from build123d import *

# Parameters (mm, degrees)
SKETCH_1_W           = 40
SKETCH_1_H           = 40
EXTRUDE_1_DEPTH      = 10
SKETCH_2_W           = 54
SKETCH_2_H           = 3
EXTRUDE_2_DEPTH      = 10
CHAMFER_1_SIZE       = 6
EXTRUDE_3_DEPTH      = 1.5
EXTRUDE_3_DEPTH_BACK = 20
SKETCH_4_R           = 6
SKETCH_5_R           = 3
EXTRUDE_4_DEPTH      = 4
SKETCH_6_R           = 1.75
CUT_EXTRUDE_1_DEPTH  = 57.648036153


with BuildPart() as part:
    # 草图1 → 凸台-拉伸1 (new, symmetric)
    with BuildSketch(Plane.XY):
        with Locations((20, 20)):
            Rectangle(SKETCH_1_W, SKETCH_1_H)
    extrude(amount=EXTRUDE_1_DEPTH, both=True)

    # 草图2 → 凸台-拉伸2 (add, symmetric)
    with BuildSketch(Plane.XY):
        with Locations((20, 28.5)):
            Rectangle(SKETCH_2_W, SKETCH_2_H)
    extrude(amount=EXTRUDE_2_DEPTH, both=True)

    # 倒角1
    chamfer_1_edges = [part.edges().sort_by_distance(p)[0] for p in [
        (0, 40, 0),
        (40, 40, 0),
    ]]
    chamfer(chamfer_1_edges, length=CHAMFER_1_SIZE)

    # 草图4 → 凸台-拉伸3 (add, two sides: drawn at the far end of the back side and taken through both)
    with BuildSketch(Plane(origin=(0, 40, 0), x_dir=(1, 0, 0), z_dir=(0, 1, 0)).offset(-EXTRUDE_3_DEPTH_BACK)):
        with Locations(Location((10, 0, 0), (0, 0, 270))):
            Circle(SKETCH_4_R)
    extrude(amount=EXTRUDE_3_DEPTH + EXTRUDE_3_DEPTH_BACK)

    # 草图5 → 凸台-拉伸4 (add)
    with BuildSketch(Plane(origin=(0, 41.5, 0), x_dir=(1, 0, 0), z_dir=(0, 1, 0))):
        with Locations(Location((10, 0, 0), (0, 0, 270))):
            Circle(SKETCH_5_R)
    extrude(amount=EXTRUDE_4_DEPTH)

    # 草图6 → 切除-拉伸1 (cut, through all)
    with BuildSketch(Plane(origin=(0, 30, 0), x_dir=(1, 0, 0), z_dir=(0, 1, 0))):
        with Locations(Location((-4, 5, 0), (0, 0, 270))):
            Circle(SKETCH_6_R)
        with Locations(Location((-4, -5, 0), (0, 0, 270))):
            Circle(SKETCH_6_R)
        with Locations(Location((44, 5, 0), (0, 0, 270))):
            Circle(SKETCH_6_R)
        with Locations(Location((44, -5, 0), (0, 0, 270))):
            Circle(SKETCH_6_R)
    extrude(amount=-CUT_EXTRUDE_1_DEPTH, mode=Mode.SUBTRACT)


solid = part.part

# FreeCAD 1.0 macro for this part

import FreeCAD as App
import Part
import Sketcher
from FreeCAD import Vector


def edges_at(feature, points):
    """Names of the edges that pass closest to the given points."""
    edges = feature.Shape.Edges
    near = lambda p: min(range(len(edges)), key=lambda i: edges[i].distToShape(Part.Vertex(*p))[0])
    return sorted({f"Edge{near(p) + 1}" for p in points})

doc = App.newDocument("Part")
body = doc.addObject("PartDesign::Body", "Body")

# Sketch on XY plane
sketch1 = body.newObject("Sketcher::SketchObject", "Sketch")
sketch1.AttachmentSupport = (doc.getObject("XY_Plane"), [""])
sketch1.MapMode = "FlatFace"
sketch1.addGeometry([
    Part.LineSegment(Vector(0, 40, 0), Vector(0, 0, 0)),
    Part.LineSegment(Vector(0, 0, 0), Vector(40, 0, 0)),
    Part.LineSegment(Vector(40, 0, 0), Vector(40, 40, 0)),
    Part.LineSegment(Vector(40, 40, 0), Vector(0, 40, 0)),
], False)
sketch1.addConstraint([
    Sketcher.Constraint("Coincident", 0, 2, 1, 1),
    Sketcher.Constraint("Coincident", 1, 2, 2, 1),
    Sketcher.Constraint("Coincident", 2, 2, 3, 1),
    Sketcher.Constraint("Coincident", 3, 2, 0, 1),
    Sketcher.Constraint("Vertical", 0),
    Sketcher.Constraint("Horizontal", 1),
    Sketcher.Constraint("Vertical", 2),
    Sketcher.Constraint("Horizontal", 3),
    Sketcher.Constraint("Coincident", 0, 2, -1, 1),
    Sketcher.Constraint("Equal", 3, 0),
    Sketcher.Constraint("DistanceX", 1, 1, 1, 2, 40.0),
])
pad1 = body.newObject("PartDesign::Pad", "Pad")
pad1.Profile = sketch1
pad1.Length = 20
pad1.Midplane = True

# Sketch on XY plane
sketch2 = body.newObject("Sketcher::SketchObject", "Sketch001")
sketch2.AttachmentSupport = (doc.getObject("XY_Plane"), [""])
sketch2.MapMode = "FlatFace"
sketch2.addGeometry([
    Part.LineSegment(Vector(-7, 30, 0), Vector(-7, 27, 0)),
    Part.LineSegment(Vector(-7, 27, 0), Vector(47, 27, 0)),
    Part.LineSegment(Vector(47, 27, 0), Vector(47, 30, 0)),
    Part.LineSegment(Vector(47, 30, 0), Vector(-7, 30, 0)),
], False)
sketch2.addConstraint([
    Sketcher.Constraint("Coincident", 0, 2, 1, 1),
    Sketcher.Constraint("Coincident", 1, 2, 2, 1),
    Sketcher.Constraint("Coincident", 2, 2, 3, 1),
    Sketcher.Constraint("Coincident", 3, 2, 0, 1),
    Sketcher.Constraint("Vertical", 0),
    Sketcher.Constraint("Horizontal", 1),
    Sketcher.Constraint("Vertical", 2),
    Sketcher.Constraint("Horizontal", 3),
    Sketcher.Constraint("DistanceX", 1, 1, 1, 2, 54.0),
    Sketcher.Constraint("DistanceY", 0, 2, 0, 1, 3.0),
    Sketcher.Constraint("DistanceX", 0, 2, -1, 1, 7.0),
    Sketcher.Constraint("DistanceY", -1, 1, 0, 2, 27.0),
])
pad2 = body.newObject("PartDesign::Pad", "Pad001")
pad2.Profile = sketch2
pad2.Length = 20
pad2.Midplane = True
doc.recompute()

chamfer = body.newObject("PartDesign::Chamfer", "Chamfer")
chamfer.Base = (pad2, edges_at(pad2, [(0, 40, 0), (40, 40, 0)]))
chamfer.Size = 6

# Sketch on XZ plane
sketch3 = body.newObject("Sketcher::SketchObject", "Sketch002")
sketch3.AttachmentSupport = (doc.getObject("XZ_Plane"), [""])
sketch3.MapMode = "FlatFace"
sketch3.AttachmentOffset = App.Placement(Vector(0, 0, -40), App.Rotation())
sketch3.addGeometry(Part.Circle(Vector(10, 0, 0), Vector(0, 0, 1), 6), False)
sketch3.addConstraint([
    Sketcher.Constraint("PointOnObject", 0, 3, -1),
    Sketcher.Constraint("Diameter", 0, 12.0),
    Sketcher.Constraint("DistanceX", -1, 1, 0, 3, 10.0),
])
pad3 = body.newObject("PartDesign::Pad", "Pad002")
pad3.Profile = sketch3
pad3.Type = "TwoLengths"
pad3.Length = 1.5
pad3.Length2 = 20
pad3.Reversed = True

# Sketch on XZ plane
sketch4 = body.newObject("Sketcher::SketchObject", "Sketch003")
sketch4.AttachmentSupport = (doc.getObject("XZ_Plane"), [""])
sketch4.MapMode = "FlatFace"
sketch4.AttachmentOffset = App.Placement(Vector(0, 0, -41.5), App.Rotation())
sketch4.addGeometry(Part.Circle(Vector(10, 0, 0), Vector(0, 0, 1), 3), False)
sketch4.addConstraint([
    Sketcher.Constraint("PointOnObject", 0, 3, -1),
    Sketcher.Constraint("Diameter", 0, 6.0),
    Sketcher.Constraint("DistanceX", -1, 1, 0, 3, 10.0),
])
pad4 = body.newObject("PartDesign::Pad", "Pad003")
pad4.Profile = sketch4
pad4.Length = 4
pad4.Reversed = True

# Sketch on XZ plane
sketch5 = body.newObject("Sketcher::SketchObject", "Sketch004")
sketch5.AttachmentSupport = (doc.getObject("XZ_Plane"), [""])
sketch5.MapMode = "FlatFace"
sketch5.AttachmentOffset = App.Placement(Vector(0, 0, -30), App.Rotation())
sketch5.addGeometry([
    Part.Circle(Vector(-4, -5, 0), Vector(0, 0, 1), 1.8),
    Part.Circle(Vector(-4, 5, 0), Vector(0, 0, 1), 1.8),
    Part.Circle(Vector(44, -5, 0), Vector(0, 0, 1), 1.8),
    Part.Circle(Vector(44, 5, 0), Vector(0, 0, 1), 1.8),
], False)
sketch5.addConstraint([
    Sketcher.Constraint("Equal", 0, 1),
    Sketcher.Constraint("Equal", 1, 2),
    Sketcher.Constraint("Equal", 2, 3),
    Sketcher.Constraint("Symmetric", 0, 3, 1, 3, -1),
    Sketcher.Constraint("Symmetric", 2, 3, 3, 3, -1),
    Sketcher.Constraint("Horizontal", 0, 3, 2, 3),
    Sketcher.Constraint("Diameter", 0, 3.5),
    Sketcher.Constraint("DistanceX", 0, 3, -1, 1, 4.0),
    Sketcher.Constraint("DistanceY", 0, 3, -1, 1, 5.0),
    Sketcher.Constraint("DistanceX", -1, 1, 2, 3, 44.0),
])
pocket1 = body.newObject("PartDesign::Pocket", "Pocket")
pocket1.Profile = sketch5
pocket1.Type = "ThroughAll"
pocket1.Reversed = True

doc.recompute()
